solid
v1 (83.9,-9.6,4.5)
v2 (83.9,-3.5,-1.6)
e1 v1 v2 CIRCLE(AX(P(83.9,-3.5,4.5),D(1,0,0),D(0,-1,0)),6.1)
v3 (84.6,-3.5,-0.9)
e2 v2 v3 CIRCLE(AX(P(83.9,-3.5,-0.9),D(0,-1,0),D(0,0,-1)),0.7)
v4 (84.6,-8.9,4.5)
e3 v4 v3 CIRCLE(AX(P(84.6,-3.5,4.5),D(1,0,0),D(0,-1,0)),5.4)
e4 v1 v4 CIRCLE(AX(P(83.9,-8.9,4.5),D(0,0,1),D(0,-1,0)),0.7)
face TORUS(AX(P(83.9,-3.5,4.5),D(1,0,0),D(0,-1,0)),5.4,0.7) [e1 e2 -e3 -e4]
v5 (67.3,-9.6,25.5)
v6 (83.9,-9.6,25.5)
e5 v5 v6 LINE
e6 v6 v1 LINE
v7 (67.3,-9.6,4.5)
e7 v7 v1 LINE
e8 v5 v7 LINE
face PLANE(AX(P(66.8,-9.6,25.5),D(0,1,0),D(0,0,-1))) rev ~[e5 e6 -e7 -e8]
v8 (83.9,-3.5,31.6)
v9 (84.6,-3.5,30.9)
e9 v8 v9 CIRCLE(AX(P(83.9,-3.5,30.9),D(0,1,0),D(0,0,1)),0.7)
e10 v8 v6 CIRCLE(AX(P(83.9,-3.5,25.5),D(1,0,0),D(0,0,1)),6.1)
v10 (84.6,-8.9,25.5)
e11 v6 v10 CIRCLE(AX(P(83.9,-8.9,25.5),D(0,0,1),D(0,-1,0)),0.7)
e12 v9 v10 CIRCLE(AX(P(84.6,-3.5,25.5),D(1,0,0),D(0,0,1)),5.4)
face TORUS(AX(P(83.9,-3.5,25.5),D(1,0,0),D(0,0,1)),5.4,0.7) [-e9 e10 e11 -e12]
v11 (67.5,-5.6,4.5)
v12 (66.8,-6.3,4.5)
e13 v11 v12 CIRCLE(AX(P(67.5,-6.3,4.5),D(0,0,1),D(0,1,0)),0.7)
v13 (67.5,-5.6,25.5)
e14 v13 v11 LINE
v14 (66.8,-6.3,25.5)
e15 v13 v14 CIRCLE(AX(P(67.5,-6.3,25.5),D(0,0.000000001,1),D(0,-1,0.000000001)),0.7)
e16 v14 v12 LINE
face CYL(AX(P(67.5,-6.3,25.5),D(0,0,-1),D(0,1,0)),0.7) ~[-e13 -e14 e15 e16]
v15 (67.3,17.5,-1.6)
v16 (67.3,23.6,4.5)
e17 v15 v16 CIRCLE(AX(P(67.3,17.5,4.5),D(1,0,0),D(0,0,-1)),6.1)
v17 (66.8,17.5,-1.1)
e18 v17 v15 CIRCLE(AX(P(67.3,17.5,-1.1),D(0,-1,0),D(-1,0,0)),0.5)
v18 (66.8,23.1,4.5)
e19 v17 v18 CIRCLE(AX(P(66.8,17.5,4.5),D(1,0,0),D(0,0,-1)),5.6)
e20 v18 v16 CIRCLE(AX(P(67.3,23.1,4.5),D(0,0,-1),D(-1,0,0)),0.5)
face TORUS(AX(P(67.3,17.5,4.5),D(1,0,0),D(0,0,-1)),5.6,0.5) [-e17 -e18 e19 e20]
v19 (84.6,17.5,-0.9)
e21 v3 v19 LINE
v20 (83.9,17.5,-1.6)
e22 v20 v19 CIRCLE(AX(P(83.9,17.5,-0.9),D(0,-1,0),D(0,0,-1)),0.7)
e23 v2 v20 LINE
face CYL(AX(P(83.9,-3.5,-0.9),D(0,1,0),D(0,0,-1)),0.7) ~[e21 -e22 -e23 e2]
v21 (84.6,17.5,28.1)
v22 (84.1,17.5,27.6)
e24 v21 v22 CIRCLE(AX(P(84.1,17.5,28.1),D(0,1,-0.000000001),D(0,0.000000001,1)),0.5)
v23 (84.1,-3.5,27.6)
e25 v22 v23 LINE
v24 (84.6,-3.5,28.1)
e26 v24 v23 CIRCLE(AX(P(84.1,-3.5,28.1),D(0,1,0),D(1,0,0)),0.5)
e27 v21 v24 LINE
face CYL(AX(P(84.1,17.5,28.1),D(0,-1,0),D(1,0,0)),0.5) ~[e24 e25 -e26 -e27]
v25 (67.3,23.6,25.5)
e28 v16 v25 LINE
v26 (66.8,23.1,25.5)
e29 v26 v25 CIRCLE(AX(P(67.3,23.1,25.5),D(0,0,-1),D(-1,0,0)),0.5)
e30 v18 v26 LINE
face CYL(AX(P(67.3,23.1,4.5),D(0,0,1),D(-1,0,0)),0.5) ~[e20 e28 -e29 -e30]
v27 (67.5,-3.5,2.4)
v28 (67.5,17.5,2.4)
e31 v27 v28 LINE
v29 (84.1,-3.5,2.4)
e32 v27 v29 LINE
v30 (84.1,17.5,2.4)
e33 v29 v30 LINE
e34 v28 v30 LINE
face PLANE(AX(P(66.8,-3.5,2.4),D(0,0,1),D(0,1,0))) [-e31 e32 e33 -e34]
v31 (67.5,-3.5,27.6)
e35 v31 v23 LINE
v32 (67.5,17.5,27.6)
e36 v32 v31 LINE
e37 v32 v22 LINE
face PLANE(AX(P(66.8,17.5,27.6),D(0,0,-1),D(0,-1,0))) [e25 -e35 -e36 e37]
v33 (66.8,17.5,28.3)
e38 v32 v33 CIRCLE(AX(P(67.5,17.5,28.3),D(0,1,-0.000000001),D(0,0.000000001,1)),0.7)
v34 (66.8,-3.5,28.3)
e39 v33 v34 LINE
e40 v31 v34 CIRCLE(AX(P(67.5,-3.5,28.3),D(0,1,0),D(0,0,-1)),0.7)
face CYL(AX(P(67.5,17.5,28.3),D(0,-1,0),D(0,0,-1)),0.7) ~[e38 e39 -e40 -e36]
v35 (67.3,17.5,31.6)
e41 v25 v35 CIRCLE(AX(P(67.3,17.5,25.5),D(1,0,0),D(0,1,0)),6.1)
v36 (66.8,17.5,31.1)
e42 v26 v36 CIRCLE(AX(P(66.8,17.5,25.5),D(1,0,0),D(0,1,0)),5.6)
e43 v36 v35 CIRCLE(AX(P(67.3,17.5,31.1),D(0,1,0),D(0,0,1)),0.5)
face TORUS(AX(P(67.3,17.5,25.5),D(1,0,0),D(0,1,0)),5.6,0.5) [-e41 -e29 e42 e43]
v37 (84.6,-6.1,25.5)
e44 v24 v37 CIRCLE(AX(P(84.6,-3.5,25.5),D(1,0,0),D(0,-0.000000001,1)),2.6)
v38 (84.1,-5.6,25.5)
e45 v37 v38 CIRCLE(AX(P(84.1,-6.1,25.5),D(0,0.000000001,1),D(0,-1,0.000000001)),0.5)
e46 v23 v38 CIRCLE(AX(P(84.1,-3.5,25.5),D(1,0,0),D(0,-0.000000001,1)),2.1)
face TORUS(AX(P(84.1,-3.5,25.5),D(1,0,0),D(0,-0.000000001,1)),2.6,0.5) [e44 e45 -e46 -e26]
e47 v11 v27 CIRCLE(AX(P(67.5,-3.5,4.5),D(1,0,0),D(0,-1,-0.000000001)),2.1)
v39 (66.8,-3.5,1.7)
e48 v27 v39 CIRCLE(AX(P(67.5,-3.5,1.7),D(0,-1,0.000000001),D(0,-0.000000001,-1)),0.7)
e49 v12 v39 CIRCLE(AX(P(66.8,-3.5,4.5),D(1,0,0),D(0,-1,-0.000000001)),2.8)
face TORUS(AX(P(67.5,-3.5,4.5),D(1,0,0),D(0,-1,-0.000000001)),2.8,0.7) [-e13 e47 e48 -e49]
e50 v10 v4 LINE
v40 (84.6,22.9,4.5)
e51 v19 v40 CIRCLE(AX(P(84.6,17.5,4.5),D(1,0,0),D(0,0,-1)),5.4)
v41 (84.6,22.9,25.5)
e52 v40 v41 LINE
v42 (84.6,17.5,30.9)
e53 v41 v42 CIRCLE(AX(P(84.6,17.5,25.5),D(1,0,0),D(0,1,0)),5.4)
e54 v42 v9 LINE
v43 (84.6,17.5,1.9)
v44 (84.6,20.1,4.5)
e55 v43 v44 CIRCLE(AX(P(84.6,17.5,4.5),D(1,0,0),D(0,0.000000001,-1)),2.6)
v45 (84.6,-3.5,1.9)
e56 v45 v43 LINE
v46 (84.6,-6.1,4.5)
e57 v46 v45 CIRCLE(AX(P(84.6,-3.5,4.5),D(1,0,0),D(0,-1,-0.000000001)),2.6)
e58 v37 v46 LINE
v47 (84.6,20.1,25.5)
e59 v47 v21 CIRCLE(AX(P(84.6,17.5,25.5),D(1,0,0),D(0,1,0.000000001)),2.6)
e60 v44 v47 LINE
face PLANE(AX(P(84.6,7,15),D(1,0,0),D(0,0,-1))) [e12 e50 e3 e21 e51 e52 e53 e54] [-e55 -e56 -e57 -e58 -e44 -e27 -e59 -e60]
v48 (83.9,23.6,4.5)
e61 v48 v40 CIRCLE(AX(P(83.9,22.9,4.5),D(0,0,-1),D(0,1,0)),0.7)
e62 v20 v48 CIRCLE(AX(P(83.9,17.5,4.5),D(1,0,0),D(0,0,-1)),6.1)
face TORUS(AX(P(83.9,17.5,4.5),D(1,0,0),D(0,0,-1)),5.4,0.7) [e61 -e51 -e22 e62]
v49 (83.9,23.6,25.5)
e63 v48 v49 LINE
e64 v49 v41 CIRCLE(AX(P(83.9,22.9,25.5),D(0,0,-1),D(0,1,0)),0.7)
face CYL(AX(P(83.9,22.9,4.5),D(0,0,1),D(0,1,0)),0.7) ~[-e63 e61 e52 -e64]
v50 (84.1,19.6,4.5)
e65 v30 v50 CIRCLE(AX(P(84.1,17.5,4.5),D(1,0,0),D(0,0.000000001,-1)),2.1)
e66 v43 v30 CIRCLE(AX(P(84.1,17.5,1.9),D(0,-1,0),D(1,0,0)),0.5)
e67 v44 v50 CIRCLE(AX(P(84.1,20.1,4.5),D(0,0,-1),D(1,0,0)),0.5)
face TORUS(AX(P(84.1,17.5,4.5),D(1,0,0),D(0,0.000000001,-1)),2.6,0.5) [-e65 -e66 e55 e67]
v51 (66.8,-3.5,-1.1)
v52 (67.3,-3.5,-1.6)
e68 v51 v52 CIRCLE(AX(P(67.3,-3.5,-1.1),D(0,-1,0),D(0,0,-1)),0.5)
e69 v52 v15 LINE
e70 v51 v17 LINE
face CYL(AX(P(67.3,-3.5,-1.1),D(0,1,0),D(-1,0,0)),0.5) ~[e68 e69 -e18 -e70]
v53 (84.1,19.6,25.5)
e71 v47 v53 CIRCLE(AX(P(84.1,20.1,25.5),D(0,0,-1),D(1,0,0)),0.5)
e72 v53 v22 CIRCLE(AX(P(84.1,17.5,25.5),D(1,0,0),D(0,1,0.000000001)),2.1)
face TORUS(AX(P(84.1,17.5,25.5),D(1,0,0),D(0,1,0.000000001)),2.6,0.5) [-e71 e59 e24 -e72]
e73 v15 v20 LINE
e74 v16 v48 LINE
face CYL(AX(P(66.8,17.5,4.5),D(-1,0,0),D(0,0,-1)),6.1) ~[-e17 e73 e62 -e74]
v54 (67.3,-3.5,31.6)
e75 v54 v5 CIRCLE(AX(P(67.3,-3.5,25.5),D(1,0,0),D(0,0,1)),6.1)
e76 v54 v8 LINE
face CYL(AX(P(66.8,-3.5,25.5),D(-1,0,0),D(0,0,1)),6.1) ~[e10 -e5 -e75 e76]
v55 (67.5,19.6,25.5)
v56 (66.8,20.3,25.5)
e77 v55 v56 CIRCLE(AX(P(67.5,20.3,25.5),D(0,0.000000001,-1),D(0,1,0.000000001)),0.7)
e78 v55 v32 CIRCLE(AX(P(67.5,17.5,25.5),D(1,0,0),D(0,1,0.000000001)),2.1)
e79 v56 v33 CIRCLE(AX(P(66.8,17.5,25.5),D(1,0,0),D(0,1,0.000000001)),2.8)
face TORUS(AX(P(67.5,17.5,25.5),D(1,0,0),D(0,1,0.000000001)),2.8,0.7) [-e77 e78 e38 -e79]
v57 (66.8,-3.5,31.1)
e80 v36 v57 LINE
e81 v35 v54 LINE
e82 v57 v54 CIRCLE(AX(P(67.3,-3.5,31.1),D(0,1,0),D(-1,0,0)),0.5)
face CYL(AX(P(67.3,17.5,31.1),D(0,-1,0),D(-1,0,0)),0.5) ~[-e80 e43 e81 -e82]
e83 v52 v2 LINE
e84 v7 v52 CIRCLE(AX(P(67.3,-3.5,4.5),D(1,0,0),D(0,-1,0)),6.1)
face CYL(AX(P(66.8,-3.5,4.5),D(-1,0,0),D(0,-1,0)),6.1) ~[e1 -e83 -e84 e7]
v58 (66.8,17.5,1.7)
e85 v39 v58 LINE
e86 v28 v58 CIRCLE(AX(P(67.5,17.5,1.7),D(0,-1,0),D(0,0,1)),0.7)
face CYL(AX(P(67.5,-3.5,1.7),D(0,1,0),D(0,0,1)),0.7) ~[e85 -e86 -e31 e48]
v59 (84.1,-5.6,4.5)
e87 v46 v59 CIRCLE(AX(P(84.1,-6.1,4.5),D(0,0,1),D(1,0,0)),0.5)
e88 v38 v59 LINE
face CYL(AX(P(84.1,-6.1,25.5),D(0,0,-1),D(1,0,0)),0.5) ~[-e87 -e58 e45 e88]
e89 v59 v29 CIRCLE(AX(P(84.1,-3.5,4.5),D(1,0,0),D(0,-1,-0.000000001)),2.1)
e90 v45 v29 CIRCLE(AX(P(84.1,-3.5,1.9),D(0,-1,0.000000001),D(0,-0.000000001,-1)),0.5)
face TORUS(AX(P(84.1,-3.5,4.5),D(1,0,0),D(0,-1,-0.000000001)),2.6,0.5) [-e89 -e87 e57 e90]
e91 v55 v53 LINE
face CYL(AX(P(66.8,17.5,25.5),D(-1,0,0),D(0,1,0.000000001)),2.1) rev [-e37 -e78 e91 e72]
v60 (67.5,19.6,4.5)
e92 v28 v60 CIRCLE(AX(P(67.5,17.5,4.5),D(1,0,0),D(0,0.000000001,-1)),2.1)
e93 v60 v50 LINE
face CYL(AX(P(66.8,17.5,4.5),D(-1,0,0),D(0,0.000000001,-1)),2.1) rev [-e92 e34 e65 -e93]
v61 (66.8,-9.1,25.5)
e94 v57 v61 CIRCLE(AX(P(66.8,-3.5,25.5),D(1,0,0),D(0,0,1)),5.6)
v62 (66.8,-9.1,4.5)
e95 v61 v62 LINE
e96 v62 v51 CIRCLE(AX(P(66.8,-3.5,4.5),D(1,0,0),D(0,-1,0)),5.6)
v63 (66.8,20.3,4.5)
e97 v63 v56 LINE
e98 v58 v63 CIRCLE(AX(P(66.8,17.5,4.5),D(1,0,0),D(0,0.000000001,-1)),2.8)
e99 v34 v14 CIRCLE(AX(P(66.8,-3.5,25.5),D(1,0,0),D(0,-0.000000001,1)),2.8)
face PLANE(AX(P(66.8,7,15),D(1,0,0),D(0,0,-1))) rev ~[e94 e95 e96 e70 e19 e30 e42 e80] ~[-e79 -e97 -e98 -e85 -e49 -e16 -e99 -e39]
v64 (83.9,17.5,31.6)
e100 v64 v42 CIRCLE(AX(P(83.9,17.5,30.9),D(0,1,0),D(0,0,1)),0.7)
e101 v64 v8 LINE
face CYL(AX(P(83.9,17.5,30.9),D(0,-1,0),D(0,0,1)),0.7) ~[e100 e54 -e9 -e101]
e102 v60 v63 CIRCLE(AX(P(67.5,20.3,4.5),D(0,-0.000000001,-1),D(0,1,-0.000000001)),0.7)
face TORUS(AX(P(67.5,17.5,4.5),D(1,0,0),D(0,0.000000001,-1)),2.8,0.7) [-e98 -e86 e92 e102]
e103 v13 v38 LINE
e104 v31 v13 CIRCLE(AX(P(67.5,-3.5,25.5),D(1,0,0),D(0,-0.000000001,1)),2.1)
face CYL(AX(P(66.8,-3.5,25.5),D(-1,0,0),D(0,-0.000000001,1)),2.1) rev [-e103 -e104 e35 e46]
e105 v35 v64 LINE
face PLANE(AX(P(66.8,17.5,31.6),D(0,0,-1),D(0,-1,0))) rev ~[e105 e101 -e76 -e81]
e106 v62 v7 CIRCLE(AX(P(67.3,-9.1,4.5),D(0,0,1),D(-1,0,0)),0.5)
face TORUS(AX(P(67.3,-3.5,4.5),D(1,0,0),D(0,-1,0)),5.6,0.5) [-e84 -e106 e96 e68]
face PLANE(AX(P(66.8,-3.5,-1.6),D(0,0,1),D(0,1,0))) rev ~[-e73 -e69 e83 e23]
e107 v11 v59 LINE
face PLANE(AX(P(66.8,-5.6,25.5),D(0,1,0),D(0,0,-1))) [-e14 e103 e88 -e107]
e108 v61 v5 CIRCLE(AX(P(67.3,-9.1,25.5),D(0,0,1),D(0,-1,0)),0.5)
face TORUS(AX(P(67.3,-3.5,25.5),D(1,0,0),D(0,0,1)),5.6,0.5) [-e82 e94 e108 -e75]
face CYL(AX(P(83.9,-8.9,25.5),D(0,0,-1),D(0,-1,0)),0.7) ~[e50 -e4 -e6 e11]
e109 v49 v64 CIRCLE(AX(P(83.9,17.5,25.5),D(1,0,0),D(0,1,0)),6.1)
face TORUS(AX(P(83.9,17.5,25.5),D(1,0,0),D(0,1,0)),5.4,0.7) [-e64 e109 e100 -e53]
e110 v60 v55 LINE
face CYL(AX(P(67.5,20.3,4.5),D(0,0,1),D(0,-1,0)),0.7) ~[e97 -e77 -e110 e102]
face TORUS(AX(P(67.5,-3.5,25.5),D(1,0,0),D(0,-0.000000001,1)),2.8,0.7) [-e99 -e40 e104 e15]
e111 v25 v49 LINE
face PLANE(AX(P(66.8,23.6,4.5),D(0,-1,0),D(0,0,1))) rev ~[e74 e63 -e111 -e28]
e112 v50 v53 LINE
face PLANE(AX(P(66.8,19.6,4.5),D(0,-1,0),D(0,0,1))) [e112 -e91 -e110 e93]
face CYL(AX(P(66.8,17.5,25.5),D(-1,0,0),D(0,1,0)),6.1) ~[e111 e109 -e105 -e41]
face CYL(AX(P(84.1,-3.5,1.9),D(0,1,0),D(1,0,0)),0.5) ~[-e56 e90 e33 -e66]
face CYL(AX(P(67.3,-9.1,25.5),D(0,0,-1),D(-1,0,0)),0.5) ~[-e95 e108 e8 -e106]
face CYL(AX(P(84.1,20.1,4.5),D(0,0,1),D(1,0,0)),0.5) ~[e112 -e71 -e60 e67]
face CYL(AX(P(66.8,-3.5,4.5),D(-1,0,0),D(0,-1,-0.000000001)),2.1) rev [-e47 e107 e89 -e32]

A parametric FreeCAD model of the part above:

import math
import FreeCAD as App
import Part
import Sketcher
Q = App.Units.Quantity


def edges_at(feature, points):
    """Names of the edges that pass closest to the given points."""
    edges = feature.Shape.Edges
    near = lambda p: min(range(len(edges)), key=lambda i: edges[i].distToShape(Part.Vertex(*p))[0])
    return sorted({f"Edge{near(p) + 1}" for p in points})

doc = App.newDocument("Part")
body = doc.addObject("PartDesign::Body", "Body")

sketch1 = doc.addObject("Sketcher::SketchObject", "Sketch")
body.addObject(sketch1)
sketch1.AttachmentSupport = (doc.YZ_Plane, [""])
sketch1.MapMode = "FlatFace"
sketch1.AttachmentOffset = App.Placement(App.Vector(0, 0, 72.6), App.Rotation())
sketch1.addGeometry([
    Part.LineSegment(App.Vector(17.5, 31.6, 0), App.Vector(-3.5, 31.6, 0)),
    Part.ArcOfCircle(Part.Circle(App.Vector(-3.5, 25.5, 0), App.Vector(0, 0, 1), 6.1), math.radians(90), math.radians(180)),
    Part.LineSegment(App.Vector(-9.6, 25.5, 0), App.Vector(-9.6, 4.5, 0)),
    Part.ArcOfCircle(Part.Circle(App.Vector(-3.5, 4.5, 0), App.Vector(0, 0, 1), 6.1), math.radians(-180), math.radians(-90)),
    Part.LineSegment(App.Vector(-3.5, -1.6, 0), App.Vector(17.5, -1.6, 0)),
    Part.ArcOfCircle(Part.Circle(App.Vector(17.5, 4.5, 0), App.Vector(0, 0, 1), 6.1), math.radians(-90), math.radians(0)),
    Part.LineSegment(App.Vector(23.6, 4.5, 0), App.Vector(23.6, 25.5, 0)),
    Part.ArcOfCircle(Part.Circle(App.Vector(17.5, 25.5, 0), App.Vector(0, 0, 1), 6.1), math.radians(0), math.radians(90)),
    Part.LineSegment(App.Vector(-3.5, 27.6, 0), App.Vector(17.5, 27.6, 0)),
    Part.ArcOfCircle(Part.Circle(App.Vector(17.5, 25.5, 0), App.Vector(0, 0, 1), 2.1), math.radians(0), math.radians(90)),
    Part.LineSegment(App.Vector(19.6, 25.5, 0), App.Vector(19.6, 4.5, 0)),
    Part.ArcOfCircle(Part.Circle(App.Vector(17.5, 4.5, 0), App.Vector(0, 0, 1), 2.1), math.radians(-90), math.radians(0)),
    Part.LineSegment(App.Vector(17.5, 2.4, 0), App.Vector(-3.5, 2.4, 0)),
    Part.ArcOfCircle(Part.Circle(App.Vector(-3.5, 4.5, 0), App.Vector(0, 0, 1), 2.1), math.radians(-180), math.radians(-90)),
    Part.LineSegment(App.Vector(-5.6, 4.5, 0), App.Vector(-5.6, 25.5, 0)),
    Part.ArcOfCircle(Part.Circle(App.Vector(-3.5, 25.5, 0), App.Vector(0, 0, 1), 2.1), math.radians(90), math.radians(180)),
], False)
sketch1.addConstraint([
    Sketcher.Constraint("Tangent", 0, 2, 1, 1),
    Sketcher.Constraint("Tangent", 1, 2, 2, 1),
    Sketcher.Constraint("Tangent", 2, 2, 3, 1),
    Sketcher.Constraint("Tangent", 3, 2, 4, 1),
    Sketcher.Constraint("Tangent", 4, 2, 5, 1),
    Sketcher.Constraint("Tangent", 5, 2, 6, 1),
    Sketcher.Constraint("Tangent", 6, 2, 7, 1),
    Sketcher.Constraint("Tangent", 7, 2, 0, 1),
    Sketcher.Constraint("Tangent", 8, 2, 9, 2),
    Sketcher.Constraint("Tangent", 9, 1, 10, 1),
    Sketcher.Constraint("Tangent", 10, 2, 11, 2),
    Sketcher.Constraint("Tangent", 11, 1, 12, 1),
    Sketcher.Constraint("Tangent", 12, 2, 13, 2),
    Sketcher.Constraint("Tangent", 13, 1, 14, 1),
    Sketcher.Constraint("Tangent", 14, 2, 15, 2),
    Sketcher.Constraint("Tangent", 15, 1, 8, 1),
    Sketcher.Constraint("Horizontal", 0),
    Sketcher.Constraint("Vertical", 2),
    Sketcher.Constraint("Horizontal", 4),
    Sketcher.Constraint("Vertical", 6),
    Sketcher.Constraint("Horizontal", 8),
    Sketcher.Constraint("Vertical", 10),
    Sketcher.Constraint("Horizontal", 12),
    Sketcher.Constraint("Vertical", 14),
    Sketcher.Constraint("Coincident", 9, 3, 7, 3),
    Sketcher.Constraint("Coincident", 11, 3, 5, 3),
    Sketcher.Constraint("Coincident", 13, 3, 3, 3),
    Sketcher.Constraint("Equal", 1, 3),
    Sketcher.Constraint("Equal", 3, 5),
    Sketcher.Constraint("Equal", 5, 7),
    Sketcher.Constraint("Equal", 13, 15),
    Sketcher.Constraint("Equal", 12, 2),
    Sketcher.Constraint("Radius", 1, Q("6.1 mm")),
    Sketcher.Constraint("Radius", 9, Q("2.1 mm")),
    Sketcher.Constraint("DistanceX", 0, 2, 0, 1, Q("21 mm")),
    Sketcher.Constraint("DistanceX", 1, 3, -1, 1, Q("3.5 mm")),
    Sketcher.Constraint("DistanceY", -1, 1, 1, 3, Q("25.5 mm")),
])
pad1 = doc.addObject("PartDesign::Pad", "Pad")
body.addObject(pad1)
pad1.Profile = sketch1
pad1.Type = "TwoLengths"
pad1.Length = 12
pad1.Length2 = 5.8
doc.recompute()

fillet = doc.addObject("PartDesign::Fillet", "Fillet")
body.addObject(fillet)
fillet.Base = (pad1, edges_at(pad1, [
    (66.8, 18.985, 26.985),
    (66.8, 7, 27.6),
    (66.8, -4.985, 26.985),
    (66.8, -5.6, 15),
    (84.6, 23.6, 15),
    (66.8, -4.985, 3.015),
    (66.8, 18.985, 3.015),
    (84.6, 21.813, 29.813),
    (66.8, 7, 2.4),
    (66.8, 19.6, 15),
    (84.6, 7, 31.6),
    (84.6, -7.813, 29.813),
    (84.6, -9.6, 15),
    (84.6, -7.813, 0.187),
    (84.6, 7, -1.6),
    (84.6, 21.813, 0.187),
]))
fillet.Radius = 0.7
doc.recompute()

fillet2 = doc.addObject("PartDesign::Fillet", "Fillet001")
body.addObject(fillet2)
fillet2.Base = (fillet, edges_at(fillet, [
    (84.6, 19.6, 15),
    (84.6, 18.985, 3.015),
    (84.6, 7, 2.4),
    (84.6, -4.985, 3.015),
    (84.6, -5.6, 15),
    (84.6, -4.985, 26.985),
    (84.6, 7, 27.6),
    (66.8, 23.6, 15),
    (66.8, 7, -1.6),
    (66.8, 21.813, 0.187),
    (66.8, -7.813, 0.187),
    (66.8, -9.6, 15),
    (66.8, -7.813, 29.813),
    (66.8, 7, 31.6),
    (66.8, 21.813, 29.813),
    (84.6, 18.985, 26.985),
]))
fillet2.Radius = 0.5

doc.recompute()
